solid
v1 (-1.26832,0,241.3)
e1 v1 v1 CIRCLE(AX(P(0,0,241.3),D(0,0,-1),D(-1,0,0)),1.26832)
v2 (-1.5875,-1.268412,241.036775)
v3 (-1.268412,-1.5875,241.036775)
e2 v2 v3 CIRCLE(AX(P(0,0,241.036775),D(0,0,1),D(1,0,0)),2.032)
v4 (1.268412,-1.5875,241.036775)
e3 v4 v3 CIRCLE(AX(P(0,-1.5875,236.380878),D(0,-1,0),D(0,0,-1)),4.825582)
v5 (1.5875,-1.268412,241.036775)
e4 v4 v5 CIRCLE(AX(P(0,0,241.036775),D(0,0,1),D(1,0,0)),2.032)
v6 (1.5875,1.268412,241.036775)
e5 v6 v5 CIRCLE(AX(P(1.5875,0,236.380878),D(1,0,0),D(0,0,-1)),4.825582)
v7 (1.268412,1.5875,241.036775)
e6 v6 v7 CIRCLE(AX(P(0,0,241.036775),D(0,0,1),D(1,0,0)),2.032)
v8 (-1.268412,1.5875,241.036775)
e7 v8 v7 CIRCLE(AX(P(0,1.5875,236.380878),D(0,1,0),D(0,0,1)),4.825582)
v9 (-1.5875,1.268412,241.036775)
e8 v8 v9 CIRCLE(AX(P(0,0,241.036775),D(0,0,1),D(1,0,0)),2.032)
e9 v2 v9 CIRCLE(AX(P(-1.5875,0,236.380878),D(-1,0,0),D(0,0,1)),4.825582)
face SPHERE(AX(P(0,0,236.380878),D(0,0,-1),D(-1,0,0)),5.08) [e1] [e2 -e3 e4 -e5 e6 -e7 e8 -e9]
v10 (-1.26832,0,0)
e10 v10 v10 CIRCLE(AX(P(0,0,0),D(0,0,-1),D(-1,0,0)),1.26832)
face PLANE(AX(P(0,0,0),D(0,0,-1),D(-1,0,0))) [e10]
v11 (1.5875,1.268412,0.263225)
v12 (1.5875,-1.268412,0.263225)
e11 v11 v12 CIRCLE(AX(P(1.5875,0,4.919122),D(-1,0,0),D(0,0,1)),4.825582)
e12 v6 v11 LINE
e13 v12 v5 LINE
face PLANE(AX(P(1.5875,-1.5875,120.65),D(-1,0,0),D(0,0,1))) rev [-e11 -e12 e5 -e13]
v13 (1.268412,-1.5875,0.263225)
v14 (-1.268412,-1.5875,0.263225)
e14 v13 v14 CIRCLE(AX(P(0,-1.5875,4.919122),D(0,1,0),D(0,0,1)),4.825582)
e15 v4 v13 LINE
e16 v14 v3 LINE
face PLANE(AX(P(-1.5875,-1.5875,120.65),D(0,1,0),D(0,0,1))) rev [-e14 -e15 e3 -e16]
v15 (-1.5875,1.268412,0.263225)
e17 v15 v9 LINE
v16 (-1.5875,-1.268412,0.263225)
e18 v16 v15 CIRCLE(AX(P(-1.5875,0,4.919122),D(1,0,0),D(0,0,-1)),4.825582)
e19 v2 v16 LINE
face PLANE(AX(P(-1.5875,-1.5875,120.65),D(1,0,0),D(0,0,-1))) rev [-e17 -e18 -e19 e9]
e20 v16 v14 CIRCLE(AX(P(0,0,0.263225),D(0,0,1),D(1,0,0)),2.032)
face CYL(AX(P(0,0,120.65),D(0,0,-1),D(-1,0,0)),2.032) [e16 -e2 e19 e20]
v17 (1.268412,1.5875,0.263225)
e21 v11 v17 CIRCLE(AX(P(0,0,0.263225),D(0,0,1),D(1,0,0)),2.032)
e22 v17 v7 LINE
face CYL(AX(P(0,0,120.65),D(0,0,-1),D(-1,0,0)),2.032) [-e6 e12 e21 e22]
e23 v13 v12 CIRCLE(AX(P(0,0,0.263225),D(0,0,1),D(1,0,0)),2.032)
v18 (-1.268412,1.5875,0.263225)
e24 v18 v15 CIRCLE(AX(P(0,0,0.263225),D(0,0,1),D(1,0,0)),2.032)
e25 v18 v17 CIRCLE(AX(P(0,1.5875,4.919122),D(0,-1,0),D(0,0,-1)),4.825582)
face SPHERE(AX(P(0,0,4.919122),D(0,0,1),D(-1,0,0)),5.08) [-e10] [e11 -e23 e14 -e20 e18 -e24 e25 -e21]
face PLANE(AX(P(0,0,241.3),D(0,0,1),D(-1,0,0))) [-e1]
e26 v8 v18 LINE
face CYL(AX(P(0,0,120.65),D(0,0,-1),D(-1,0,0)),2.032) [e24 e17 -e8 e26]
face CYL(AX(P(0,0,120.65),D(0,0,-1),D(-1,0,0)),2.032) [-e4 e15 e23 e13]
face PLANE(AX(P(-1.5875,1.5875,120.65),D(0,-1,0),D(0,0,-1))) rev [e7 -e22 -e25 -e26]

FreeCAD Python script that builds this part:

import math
import FreeCAD as App
import Part
import Sketcher

V = App.Vector
Q = App.Units.Quantity

doc = App.newDocument("Part")
body = doc.addObject("PartDesign::Body", "Body")

# Sketch on XY plane
sketch1 = body.newObject("Sketcher::SketchObject", "Sketch")
sketch1.AttachmentSupport = (doc.getObject("XY_Plane"), [""])
sketch1.MapMode = "FlatFace"
sketch1.addGeometry(Part.LineSegment(V(-1.6, 1.6, 0), V(-1.6, -1.6, 0)), False)
sketch1.addGeometry(Part.LineSegment(V(-1.6, -1.6, 0), V(1.6, -1.6, 0)), False)
sketch1.addGeometry(Part.LineSegment(V(1.6, -1.6, 0), V(1.6, 1.6, 0)), False)
sketch1.addGeometry(Part.LineSegment(V(1.6, 1.6, 0), V(-1.6, 1.6, 0)), False)
sketch1.addConstraint(Sketcher.Constraint("Coincident", 0, 2, 1, 1))
sketch1.addConstraint(Sketcher.Constraint("Coincident", 1, 2, 2, 1))
sketch1.addConstraint(Sketcher.Constraint("Coincident", 2, 2, 3, 1))
sketch1.addConstraint(Sketcher.Constraint("Coincident", 3, 2, 0, 1))
sketch1.addConstraint(Sketcher.Constraint("Vertical", 0))
sketch1.addConstraint(Sketcher.Constraint("Horizontal", 1))
sketch1.addConstraint(Sketcher.Constraint("Vertical", 2))
sketch1.addConstraint(Sketcher.Constraint("Horizontal", 3))
sketch1.addConstraint(Sketcher.Constraint("Symmetric", 0, 2, 2, 2, -1, 1))
sketch1.addConstraint(Sketcher.Constraint("Equal", 3, 0))
sketch1.addConstraint(Sketcher.Constraint("DistanceX", 1, 1, 1, 2, Q("0.125 in")))
pad1 = body.newObject("PartDesign::Pad", "Pad")
pad1.Profile = sketch1
pad1.Length = Q("4.75 in")

# Sketch on XY plane
sketch2 = body.newObject("Sketcher::SketchObject", "Sketch001")
sketch2.AttachmentSupport = (doc.getObject("XY_Plane"), [""])
sketch2.MapMode = "FlatFace"
sketch2.addGeometry(Part.LineSegment(V(14.7, 14.7, 0), V(14.7, -14.7, 0)), False)
sketch2.addGeometry(Part.LineSegment(V(14.7, -14.7, 0), V(-14.7, -14.7, 0)), False)
sketch2.addGeometry(Part.LineSegment(V(-14.7, -14.7, 0), V(-14.7, 14.7, 0)), False)
sketch2.addGeometry(Part.LineSegment(V(-14.7, 14.7, 0), V(14.7, 14.7, 0)), False)
sketch2.addGeometry(Part.Circle(V(0, 0, 0), V(0, 0, 1), 2), False)
sketch2.addConstraint(Sketcher.Constraint("Coincident", 0, 2, 1, 1))
sketch2.addConstraint(Sketcher.Constraint("Coincident", 1, 2, 2, 1))
sketch2.addConstraint(Sketcher.Constraint("Coincident", 2, 2, 3, 1))
sketch2.addConstraint(Sketcher.Constraint("Coincident", 3, 2, 0, 1))
sketch2.addConstraint(Sketcher.Constraint("Vertical", 0))
sketch2.addConstraint(Sketcher.Constraint("Horizontal", 1))
sketch2.addConstraint(Sketcher.Constraint("Vertical", 2))
sketch2.addConstraint(Sketcher.Constraint("Horizontal", 3))
sketch2.addConstraint(Sketcher.Constraint("Coincident", 4, 3, -1, 1))
sketch2.addConstraint(Sketcher.Constraint("Symmetric", 0, 2, 2, 2, -1, 1))
sketch2.addConstraint(Sketcher.Constraint("Equal", 3, 0))
sketch2.addConstraint(Sketcher.Constraint("Diameter", 4, Q("0.16 in")))
sketch2.addConstraint(Sketcher.Constraint("DistanceX", 1, 2, 1, 1, Q("29.322 mm")))
pocket1 = body.newObject("PartDesign::Pocket", "Pocket")
pocket1.Profile = sketch2
pocket1.Type = "ThroughAll"
pocket1.Reversed = True

# Sketch on XZ plane
sketch3 = body.newObject("Sketcher::SketchObject", "Sketch002")
sketch3.AttachmentSupport = (doc.getObject("XZ_Plane"), [""])
sketch3.MapMode = "FlatFace"
sketch3.addGeometry(Part.LineSegment(V(-5, -6, 0), V(-5, 4, 0)), False)
sketch3.addGeometry(Part.ArcOfCircle(Part.Circle(V(0, 5, 0), V(0, 0, 1), 5), math.radians(-174), math.radians(-90)), False)
sketch3.addGeometry(Part.LineSegment(V(0, 0, 0), V(0, -6, 0)), False)
sketch3.addGeometry(Part.LineSegment(V(0, -6, 0), V(-5, -6, 0)), False)
sketch3.addConstraint(Sketcher.Constraint("Coincident", 0, 2, 1, 1))
sketch3.addConstraint(Sketcher.Constraint("Coincident", 1, 2, 2, 1))
sketch3.addConstraint(Sketcher.Constraint("Coincident", 2, 2, 3, 1))
sketch3.addConstraint(Sketcher.Constraint("Coincident", 3, 2, 0, 1))
sketch3.addConstraint(Sketcher.Constraint("Vertical", 0))
sketch3.addConstraint(Sketcher.Constraint("Vertical", 2))
sketch3.addConstraint(Sketcher.Constraint("Horizontal", 3))
sketch3.addConstraint(Sketcher.Constraint("PointOnObject", 1, 3, -2))
sketch3.addConstraint(Sketcher.Constraint("PointOnObject", 1, 2, -2))
sketch3.addConstraint(Sketcher.Constraint("Radius", 1, Q("0.2 in")))
sketch3.addConstraint(Sketcher.Constraint("DistanceX", 3, 2, 3, 1, Q("5.053686 mm")))
sketch3.addConstraint(Sketcher.Constraint("DistanceY", 0, 1, 0, 2, Q("10.143263 mm")))
sketch3.addConstraint(Sketcher.Constraint("DistanceY", 2, 2, -1, 1, Q("5.740531 mm")))
groove = body.newObject("PartDesign::Groove", "Groove")
groove.Profile = sketch3
groove.ReferenceAxis = (sketch3, ["V_Axis"])
groove.Angle = 360
body2 = doc.addObject("PartDesign::Body", "Body001")
doc.recompute()

body2.BaseFeature = body
doc.recompute()

mirroring = doc.addObject("Part::Mirroring", "Mirroring")
mirroring.Source = body
mirroring.Base = V(0, 0, 120.65)
mirroring.Normal = V(0, 0, -1)
body3 = doc.addObject("PartDesign::Body", "Body002")
body3.BaseFeature = mirroring
boolean = body2.newObject("PartDesign::Boolean", "Boolean")
boolean.Type = "Fuse"
boolean.addObjects([body3])
doc.recompute()
mirroring.Visibility = False

doc.recompute()
